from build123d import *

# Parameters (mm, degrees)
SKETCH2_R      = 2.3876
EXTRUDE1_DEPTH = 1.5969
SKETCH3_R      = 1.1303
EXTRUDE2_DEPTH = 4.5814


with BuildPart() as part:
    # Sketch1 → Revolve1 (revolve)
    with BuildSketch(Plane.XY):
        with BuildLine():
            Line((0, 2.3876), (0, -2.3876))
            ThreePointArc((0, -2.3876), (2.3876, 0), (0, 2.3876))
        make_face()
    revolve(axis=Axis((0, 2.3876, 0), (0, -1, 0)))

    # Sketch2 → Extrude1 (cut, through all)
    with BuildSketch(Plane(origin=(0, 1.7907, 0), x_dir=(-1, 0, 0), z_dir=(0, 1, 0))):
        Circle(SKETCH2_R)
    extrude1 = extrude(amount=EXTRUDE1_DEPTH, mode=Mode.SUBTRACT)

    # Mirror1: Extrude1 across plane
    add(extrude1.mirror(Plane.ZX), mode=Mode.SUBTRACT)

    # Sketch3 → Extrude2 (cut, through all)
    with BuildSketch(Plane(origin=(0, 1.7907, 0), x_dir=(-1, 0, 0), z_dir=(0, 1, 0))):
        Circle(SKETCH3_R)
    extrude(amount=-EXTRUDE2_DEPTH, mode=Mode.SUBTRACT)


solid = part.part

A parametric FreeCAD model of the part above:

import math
import FreeCAD as App
import Part
import Sketcher
Q = App.Units.Quantity

doc = App.newDocument("Part")
params = doc.addObject("Spreadsheet::Sheet", "Params")
for row, (alias, value) in enumerate([
    ("sketch1_radius", "0.094 in"),
    ("revolution_angle", "360 deg"),
    ("sketch2_diameter", "0.188 in"),
    ("sketch3_diameter", "0.089 in"),
], start=1):
    params.set(f"A{row}", alias)
    params.set(f"B{row}", "=" + value)
    params.setAlias(f"B{row}", alias)

body = doc.addObject("PartDesign::Body", "Body")

# Sketch on XY plane
sketch1 = body.newObject("Sketcher::SketchObject", "Sketch")
sketch1.AttachmentSupport = (doc.getObject("XY_Plane"), [""])
sketch1.MapMode = "FlatFace"
sketch1.addGeometry([
    Part.LineSegment(App.Vector(0, 2.3876, 0), App.Vector(0, -2.3876, 0)),
    Part.ArcOfCircle(Part.Circle(App.Vector(0, 0, 0), App.Vector(0, 0, 1), 2.3876), math.radians(-90), math.radians(90)),
], False)
sketch1.addConstraint([
    Sketcher.Constraint("Coincident", 0, 1, 1, 2),
    Sketcher.Constraint("Coincident", 1, 1, 0, 2),
    Sketcher.Constraint("Vertical", 0),
    Sketcher.Constraint("Coincident", 1, 3, -1, 1),
    Sketcher.Constraint("PointOnObject", 0, 1, -2),
    Sketcher.Constraint("Radius", 1, Q("0.094 in")),
])
sketch1.setExpression("Constraints[5]", "Params.sketch1_radius")
revolution = body.newObject("PartDesign::Revolution", "Revolution")
revolution.Profile = sketch1
revolution.ReferenceAxis = (sketch1, ["V_Axis"])
revolution.setExpression("Angle", "Params.revolution_angle")

# Sketch on XZ plane
sketch2 = body.newObject("Sketcher::SketchObject", "Sketch001")
sketch2.AttachmentSupport = (doc.getObject("XZ_Plane"), [""])
sketch2.MapMode = "FlatFace"
sketch2.AttachmentOffset = App.Placement(App.Vector(0, 0, -0.0705 * 25.4), App.Rotation())
sketch2.addGeometry(Part.Circle(App.Vector(0, 0, 0), App.Vector(0, 0, 1), 2.3876), False)
sketch2.addConstraint([
    Sketcher.Constraint("Coincident", 0, 3, -1, 1),
    Sketcher.Constraint("Diameter", 0, Q("0.188 in")),
])
sketch2.setExpression("Constraints[1]", "Params.sketch2_diameter")
pocket1 = body.newObject("PartDesign::Pocket", "Pocket")
pocket1.Profile = sketch2
pocket1.Type = "ThroughAll"
doc.recompute()

mirrored = body.newObject("PartDesign::Mirrored", "Mirrored")
mirrored.Originals = [pocket1]
mirrored.MirrorPlane = (doc.getObject("XZ_Plane"), [""])
body.Tip = mirrored

# Sketch on XZ plane
sketch3 = body.newObject("Sketcher::SketchObject", "Sketch002")
sketch3.AttachmentSupport = (doc.getObject("XZ_Plane"), [""])
sketch3.MapMode = "FlatFace"
sketch3.AttachmentOffset = App.Placement(App.Vector(0, 0, -0.0705 * 25.4), App.Rotation())
sketch3.addGeometry(Part.Circle(App.Vector(0, 0, 0), App.Vector(0, 0, 1), 1.1303), False)
sketch3.addConstraint([
    Sketcher.Constraint("Coincident", 0, 3, -1, 1),
    Sketcher.Constraint("Diameter", 0, Q("0.089 in")),
])
sketch3.setExpression("Constraints[1]", "Params.sketch3_diameter")
pocket2 = body.newObject("PartDesign::Pocket", "Pocket001")
pocket2.Profile = sketch3
pocket2.Type = "ThroughAll"
pocket2.Reversed = True

doc.recompute()
